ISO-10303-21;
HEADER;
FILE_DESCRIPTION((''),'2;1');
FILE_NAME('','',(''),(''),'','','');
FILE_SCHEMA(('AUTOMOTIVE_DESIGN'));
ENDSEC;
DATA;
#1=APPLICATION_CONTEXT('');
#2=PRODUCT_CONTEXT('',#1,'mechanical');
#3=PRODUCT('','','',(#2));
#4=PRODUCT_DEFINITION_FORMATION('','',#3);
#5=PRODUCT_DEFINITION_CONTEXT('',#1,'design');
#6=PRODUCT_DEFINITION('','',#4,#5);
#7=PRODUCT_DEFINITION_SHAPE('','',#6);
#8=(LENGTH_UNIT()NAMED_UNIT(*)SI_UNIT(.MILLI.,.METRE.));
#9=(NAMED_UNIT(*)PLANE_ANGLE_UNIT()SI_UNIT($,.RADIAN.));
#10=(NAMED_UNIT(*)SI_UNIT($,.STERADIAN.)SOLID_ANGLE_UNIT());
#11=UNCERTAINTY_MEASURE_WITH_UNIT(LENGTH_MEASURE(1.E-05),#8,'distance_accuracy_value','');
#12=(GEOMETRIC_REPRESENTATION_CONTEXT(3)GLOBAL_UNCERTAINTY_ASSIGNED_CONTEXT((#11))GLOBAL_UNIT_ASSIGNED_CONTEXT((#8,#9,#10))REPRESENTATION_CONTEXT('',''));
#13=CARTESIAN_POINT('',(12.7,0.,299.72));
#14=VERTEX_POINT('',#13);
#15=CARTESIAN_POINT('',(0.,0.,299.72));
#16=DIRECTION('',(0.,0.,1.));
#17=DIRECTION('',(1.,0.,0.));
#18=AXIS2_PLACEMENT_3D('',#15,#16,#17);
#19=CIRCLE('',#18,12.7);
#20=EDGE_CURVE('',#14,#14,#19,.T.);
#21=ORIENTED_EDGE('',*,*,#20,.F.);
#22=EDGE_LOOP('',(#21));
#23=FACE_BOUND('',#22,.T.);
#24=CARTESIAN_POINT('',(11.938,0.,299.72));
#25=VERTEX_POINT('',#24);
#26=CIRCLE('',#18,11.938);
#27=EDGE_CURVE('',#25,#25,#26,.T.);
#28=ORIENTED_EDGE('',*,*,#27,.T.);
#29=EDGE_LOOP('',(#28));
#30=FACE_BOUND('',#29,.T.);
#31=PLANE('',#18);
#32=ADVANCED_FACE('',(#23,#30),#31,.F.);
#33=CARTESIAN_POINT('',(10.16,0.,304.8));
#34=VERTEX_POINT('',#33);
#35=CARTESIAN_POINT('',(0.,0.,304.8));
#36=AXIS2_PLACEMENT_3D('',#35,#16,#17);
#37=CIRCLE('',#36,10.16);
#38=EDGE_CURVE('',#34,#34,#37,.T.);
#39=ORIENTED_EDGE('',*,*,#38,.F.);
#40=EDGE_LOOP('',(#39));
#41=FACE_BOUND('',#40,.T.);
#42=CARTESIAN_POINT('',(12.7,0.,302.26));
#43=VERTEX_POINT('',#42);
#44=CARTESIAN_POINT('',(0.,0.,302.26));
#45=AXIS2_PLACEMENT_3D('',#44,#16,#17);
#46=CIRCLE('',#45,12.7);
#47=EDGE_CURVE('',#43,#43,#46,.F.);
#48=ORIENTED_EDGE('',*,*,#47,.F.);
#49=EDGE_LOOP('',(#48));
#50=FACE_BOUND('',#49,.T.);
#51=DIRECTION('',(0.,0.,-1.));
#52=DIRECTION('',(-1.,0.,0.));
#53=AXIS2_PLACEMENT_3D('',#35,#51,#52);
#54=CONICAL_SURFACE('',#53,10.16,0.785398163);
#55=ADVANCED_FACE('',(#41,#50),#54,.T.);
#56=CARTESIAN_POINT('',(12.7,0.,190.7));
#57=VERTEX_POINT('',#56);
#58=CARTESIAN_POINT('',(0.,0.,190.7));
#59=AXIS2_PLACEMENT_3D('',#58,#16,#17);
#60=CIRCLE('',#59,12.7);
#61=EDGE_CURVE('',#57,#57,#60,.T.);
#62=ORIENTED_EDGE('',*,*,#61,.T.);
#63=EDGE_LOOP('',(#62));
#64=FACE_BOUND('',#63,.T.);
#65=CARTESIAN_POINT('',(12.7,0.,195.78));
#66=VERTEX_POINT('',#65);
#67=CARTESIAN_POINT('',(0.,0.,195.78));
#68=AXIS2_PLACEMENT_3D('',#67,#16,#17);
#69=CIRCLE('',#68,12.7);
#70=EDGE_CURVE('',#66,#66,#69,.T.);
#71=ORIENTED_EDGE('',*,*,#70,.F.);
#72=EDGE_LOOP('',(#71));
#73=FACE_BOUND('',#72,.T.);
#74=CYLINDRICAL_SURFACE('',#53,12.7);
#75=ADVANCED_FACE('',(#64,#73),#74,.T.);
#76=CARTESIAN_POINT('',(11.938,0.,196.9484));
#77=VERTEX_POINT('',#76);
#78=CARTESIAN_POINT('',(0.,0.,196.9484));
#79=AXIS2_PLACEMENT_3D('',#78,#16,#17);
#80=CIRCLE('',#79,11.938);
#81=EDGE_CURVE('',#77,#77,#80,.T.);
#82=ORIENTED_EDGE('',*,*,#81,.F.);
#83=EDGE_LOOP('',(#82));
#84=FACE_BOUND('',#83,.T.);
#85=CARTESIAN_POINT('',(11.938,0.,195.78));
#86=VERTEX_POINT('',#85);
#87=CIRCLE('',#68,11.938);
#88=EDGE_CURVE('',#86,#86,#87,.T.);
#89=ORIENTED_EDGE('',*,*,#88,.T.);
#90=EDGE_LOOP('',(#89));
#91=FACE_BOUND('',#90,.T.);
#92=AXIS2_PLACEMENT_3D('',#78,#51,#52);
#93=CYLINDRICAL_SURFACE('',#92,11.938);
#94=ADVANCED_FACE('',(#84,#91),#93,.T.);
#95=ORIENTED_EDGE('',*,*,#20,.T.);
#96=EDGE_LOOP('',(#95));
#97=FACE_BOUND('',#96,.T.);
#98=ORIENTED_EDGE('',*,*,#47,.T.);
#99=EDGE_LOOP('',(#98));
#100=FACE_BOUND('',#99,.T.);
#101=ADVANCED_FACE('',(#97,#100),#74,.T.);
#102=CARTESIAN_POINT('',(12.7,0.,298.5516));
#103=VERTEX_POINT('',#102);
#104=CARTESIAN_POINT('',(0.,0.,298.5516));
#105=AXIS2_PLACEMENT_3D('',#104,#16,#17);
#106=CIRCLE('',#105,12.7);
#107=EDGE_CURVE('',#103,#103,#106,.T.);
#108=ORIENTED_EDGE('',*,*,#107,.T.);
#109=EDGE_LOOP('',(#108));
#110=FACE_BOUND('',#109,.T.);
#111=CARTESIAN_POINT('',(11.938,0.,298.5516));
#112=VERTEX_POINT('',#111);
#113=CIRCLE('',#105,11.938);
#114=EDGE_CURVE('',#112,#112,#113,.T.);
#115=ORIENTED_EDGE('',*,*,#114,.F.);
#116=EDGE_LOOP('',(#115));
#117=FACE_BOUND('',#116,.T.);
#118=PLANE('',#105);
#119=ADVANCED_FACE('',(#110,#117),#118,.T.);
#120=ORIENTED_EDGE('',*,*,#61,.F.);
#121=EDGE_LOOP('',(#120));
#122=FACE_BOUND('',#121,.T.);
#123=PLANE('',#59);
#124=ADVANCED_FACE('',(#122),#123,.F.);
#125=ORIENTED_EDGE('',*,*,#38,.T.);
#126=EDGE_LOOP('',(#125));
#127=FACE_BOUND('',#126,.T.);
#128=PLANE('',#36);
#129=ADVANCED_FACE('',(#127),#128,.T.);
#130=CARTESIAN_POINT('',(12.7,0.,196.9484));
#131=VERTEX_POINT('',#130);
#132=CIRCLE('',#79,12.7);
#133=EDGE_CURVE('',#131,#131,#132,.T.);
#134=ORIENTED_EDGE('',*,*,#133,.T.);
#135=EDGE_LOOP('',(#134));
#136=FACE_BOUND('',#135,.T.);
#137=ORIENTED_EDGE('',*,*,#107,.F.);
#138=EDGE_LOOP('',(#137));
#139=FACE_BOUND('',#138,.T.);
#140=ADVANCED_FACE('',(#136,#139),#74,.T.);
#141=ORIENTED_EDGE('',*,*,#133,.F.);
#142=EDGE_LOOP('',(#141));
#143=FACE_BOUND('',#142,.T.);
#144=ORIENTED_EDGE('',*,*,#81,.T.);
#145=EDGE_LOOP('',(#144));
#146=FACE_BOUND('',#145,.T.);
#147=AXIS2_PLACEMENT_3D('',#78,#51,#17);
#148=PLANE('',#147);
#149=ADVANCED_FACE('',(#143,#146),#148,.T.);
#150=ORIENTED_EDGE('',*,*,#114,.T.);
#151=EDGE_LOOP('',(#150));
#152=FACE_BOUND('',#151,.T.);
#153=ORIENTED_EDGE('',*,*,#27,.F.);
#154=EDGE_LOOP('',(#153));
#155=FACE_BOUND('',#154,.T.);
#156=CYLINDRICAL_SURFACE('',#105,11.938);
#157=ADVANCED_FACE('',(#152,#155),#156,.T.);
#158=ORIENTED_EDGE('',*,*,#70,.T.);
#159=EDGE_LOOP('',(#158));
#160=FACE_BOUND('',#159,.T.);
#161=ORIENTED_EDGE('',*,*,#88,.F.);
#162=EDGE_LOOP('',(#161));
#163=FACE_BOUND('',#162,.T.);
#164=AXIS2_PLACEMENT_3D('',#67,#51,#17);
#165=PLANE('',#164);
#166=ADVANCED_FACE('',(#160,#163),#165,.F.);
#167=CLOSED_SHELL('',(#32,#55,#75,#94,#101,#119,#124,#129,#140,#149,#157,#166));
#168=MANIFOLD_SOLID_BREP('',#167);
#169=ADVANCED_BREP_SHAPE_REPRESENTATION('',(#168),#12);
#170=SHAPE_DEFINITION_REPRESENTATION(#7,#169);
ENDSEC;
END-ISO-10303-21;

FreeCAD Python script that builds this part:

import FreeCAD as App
import Part
import Sketcher
from FreeCAD import Vector
Q = App.Units.Quantity


def edges_at(feature, points):
    """Names of the edges that pass closest to the given points."""
    edges = feature.Shape.Edges
    near = lambda p: min(range(len(edges)), key=lambda i: edges[i].distToShape(Part.Vertex(*p))[0])
    return sorted({f"Edge{near(p) + 1}" for p in points})

doc = App.newDocument("Part")
body = doc.addObject("PartDesign::Body", "Body")

# Sketch on XY plane
sketch1 = doc.addObject("Sketcher::SketchObject", "Sketch")
body.addObject(sketch1)
sketch1.AttachmentSupport = (doc.XY_Plane, [""])
sketch1.MapMode = "FlatFace"
sketch1.addGeometry(Part.Circle(Vector(0, 0, 0), Vector(0, 0, 1), 12.7), False)
sketch1.addConstraint([
    Sketcher.Constraint("Coincident", 0, 3, -1, 1),
    Sketcher.Constraint("Diameter", 0, Q("1 in")),
])
pad1 = doc.addObject("PartDesign::Pad", "Pad")
body.addObject(pad1)
pad1.Profile = sketch1
pad1.Length = Q("24 in")
pad1.Midplane = True
doc.recompute()

chamfer = doc.addObject("PartDesign::Chamfer", "Chamfer")
body.addObject(chamfer)
chamfer.Base = (pad1, edges_at(pad1, [(-12.7, 0, -304.8), (-12.7, 0, 304.8)]))
chamfer.Size = Q("0.1 in")

# Sketch on XY plane
sketch2 = doc.addObject("Sketcher::SketchObject", "Sketch001")
body.addObject(sketch2)
sketch2.AttachmentSupport = (doc.XY_Plane, [""])
sketch2.MapMode = "FlatFace"
sketch2.AttachmentOffset = App.Placement(Vector(0, 0, 190.7), App.Rotation())
sketch2.addGeometry(Part.Circle(Vector(0, 0, 0), Vector(0, 0, 1), 12.7), False)
sketch2.addConstraint([
    Sketcher.Constraint("Coincident", 0, 3, -1, 1),
    Sketcher.Constraint("Diameter", 0, Q("1 in")),
])
pocket1 = doc.addObject("PartDesign::Pocket", "Pocket")
body.addObject(pocket1)
pocket1.Profile = sketch2
pocket1.Type = "ThroughAll"

# Sketch on XY plane
sketch3 = doc.addObject("Sketcher::SketchObject", "Sketch002")
body.addObject(sketch3)
sketch3.AttachmentSupport = (doc.XY_Plane, [""])
sketch3.MapMode = "FlatFace"
sketch3.AttachmentOffset = App.Placement(Vector(0, 0, 11.8 * 25.4), App.Rotation())
sketch3.addGeometry([
    Part.Circle(Vector(0, 0, 0), Vector(0, 0, 1), 12.7),
    Part.Circle(Vector(0, 0, 0), Vector(0, 0, 1), 11.938),
], False)
sketch3.addConstraint([
    Sketcher.Constraint("Coincident", 0, 3, -1, 1),
    Sketcher.Constraint("Coincident", 1, 3, -1, 1),
    Sketcher.Constraint("Diameter", 0, Q("1 in")),
    Sketcher.Constraint("Diameter", 1, Q("0.94 in")),
])
pocket2 = doc.addObject("PartDesign::Pocket", "Pocket001")
body.addObject(pocket2)
pocket2.Profile = sketch3
pocket2.Length = Q("0.046 in")
doc.recompute()

datumplane = doc.addObject("PartDesign::Plane", "DatumPlane")
body.addObject(datumplane)
datumplane.AttachmentSupport = (doc.XY_Plane, [""])
datumplane.MapMode = "FlatFace"
datumplane.AttachmentOffset = App.Placement(Vector(0, 0, 247.75), App.Rotation())
mirrored = doc.addObject("PartDesign::Mirrored", "Mirrored")
body.addObject(mirrored)
mirrored.Originals = [pocket2]
mirrored.MirrorPlane = (datumplane, [""])
body.Tip = mirrored

doc.recompute()
